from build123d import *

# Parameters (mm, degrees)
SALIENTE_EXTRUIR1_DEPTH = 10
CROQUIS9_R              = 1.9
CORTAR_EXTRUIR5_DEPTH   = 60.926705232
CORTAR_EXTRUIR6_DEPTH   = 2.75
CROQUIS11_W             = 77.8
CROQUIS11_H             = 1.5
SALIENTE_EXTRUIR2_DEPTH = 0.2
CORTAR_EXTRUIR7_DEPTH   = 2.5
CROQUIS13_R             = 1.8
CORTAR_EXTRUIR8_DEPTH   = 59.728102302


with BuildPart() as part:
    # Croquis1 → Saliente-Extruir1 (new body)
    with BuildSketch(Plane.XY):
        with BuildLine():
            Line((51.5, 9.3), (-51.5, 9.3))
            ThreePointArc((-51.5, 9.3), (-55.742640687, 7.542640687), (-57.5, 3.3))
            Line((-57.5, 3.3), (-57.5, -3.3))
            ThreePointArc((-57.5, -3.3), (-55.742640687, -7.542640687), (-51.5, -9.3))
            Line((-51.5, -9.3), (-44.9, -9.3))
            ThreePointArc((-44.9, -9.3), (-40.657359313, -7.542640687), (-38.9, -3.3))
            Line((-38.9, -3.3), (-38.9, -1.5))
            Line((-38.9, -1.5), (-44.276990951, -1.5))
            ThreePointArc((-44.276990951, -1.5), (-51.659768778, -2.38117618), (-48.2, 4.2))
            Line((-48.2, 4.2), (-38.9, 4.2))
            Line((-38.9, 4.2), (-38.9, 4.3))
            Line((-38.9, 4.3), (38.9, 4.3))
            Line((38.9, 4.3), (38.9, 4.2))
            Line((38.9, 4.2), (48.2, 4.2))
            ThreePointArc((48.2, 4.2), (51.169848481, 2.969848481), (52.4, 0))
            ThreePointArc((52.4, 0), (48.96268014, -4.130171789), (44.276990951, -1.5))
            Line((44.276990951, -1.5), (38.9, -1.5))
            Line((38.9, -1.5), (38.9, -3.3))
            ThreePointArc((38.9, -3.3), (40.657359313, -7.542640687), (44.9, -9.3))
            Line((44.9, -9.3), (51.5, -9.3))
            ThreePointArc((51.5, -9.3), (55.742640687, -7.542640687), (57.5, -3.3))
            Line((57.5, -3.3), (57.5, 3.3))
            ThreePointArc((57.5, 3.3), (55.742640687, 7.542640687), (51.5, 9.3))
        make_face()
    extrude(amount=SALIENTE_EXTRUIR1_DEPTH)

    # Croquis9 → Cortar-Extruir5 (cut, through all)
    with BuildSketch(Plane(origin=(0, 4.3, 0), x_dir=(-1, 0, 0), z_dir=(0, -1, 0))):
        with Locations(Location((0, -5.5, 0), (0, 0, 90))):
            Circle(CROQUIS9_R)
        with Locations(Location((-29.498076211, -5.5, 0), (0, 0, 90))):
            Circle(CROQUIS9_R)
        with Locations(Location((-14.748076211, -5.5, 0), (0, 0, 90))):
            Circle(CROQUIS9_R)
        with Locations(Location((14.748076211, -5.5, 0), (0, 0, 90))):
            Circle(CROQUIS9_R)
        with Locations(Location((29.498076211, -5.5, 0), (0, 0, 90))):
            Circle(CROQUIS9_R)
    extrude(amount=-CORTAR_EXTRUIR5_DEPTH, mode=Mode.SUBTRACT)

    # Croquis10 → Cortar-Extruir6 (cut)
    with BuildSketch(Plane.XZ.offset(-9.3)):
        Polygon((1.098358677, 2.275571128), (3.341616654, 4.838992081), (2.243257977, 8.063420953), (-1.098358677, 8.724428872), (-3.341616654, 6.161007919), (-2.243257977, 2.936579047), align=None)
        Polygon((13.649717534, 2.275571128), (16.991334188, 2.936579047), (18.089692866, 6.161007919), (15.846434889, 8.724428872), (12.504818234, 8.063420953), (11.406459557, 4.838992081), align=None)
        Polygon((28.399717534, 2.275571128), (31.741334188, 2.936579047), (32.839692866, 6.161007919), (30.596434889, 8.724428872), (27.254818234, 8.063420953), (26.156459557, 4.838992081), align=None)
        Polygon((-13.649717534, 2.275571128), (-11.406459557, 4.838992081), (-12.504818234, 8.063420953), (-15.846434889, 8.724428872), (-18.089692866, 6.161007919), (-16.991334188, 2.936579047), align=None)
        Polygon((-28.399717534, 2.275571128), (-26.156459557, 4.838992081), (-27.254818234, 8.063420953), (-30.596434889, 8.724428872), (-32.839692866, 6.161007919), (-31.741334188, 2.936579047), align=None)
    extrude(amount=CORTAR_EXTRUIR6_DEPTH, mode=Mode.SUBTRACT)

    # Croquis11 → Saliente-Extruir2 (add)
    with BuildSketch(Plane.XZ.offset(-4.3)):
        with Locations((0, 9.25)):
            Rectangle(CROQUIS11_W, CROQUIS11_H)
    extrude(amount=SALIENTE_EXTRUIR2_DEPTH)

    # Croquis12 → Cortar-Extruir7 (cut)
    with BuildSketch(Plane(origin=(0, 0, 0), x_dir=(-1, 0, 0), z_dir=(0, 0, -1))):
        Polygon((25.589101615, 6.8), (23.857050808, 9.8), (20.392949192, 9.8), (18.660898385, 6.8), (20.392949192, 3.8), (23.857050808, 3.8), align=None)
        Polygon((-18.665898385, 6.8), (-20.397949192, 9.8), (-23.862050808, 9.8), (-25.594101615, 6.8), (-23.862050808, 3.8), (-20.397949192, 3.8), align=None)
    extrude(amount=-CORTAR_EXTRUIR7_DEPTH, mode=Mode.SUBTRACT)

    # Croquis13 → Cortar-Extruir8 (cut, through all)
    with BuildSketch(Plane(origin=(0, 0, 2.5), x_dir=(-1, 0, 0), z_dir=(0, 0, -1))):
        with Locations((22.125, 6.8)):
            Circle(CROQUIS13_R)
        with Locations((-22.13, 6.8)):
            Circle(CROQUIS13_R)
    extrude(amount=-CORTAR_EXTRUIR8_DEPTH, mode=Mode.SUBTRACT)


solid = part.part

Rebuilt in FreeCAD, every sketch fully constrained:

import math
import FreeCAD as App
import Part
import Sketcher
from FreeCAD import Vector
Q = App.Units.Quantity


def add_polygon(sketch, points):
    """Adds a closed chain of lines whose ends are joined by coincident constraints."""
    first, n = sketch.GeometryCount, len(points)
    for a, b in zip(points, points[1:] + points[:1]):
        sketch.addGeometry(Part.LineSegment(App.Vector(*a, 0), App.Vector(*b, 0)), False)
    for i in range(n):
        sketch.addConstraint(Sketcher.Constraint("Coincident", first + i, 2, first + (i + 1) % n, 1))

doc = App.newDocument("Part")
body = doc.addObject("PartDesign::Body", "Body")

sketch1 = body.newObject("Sketcher::SketchObject", "Sketch")
sketch1.AttachmentSupport = (doc.getObject("XY_Plane"), [""])
sketch1.MapMode = "FlatFace"
sketch1.addGeometry(Part.LineSegment(Vector(51.5, 9.3, 0), Vector(-51.5, 9.3, 0)), False)
sketch1.addGeometry(Part.ArcOfCircle(Part.Circle(Vector(-51.5, 3.3, 0), Vector(0, 0, 1), 6), math.radians(90), math.radians(180)), False)
sketch1.addGeometry(Part.LineSegment(Vector(-57.5, 3.3, 0), Vector(-57.5, -3.3, 0)), False)
sketch1.addGeometry(Part.ArcOfCircle(Part.Circle(Vector(-51.5, -3.3, 0), Vector(0, 0, 1), 6), math.radians(180), math.radians(270)), False)
sketch1.addGeometry(Part.LineSegment(Vector(-51.5, -9.3, 0), Vector(-44.9, -9.3, 0)), False)
sketch1.addGeometry(Part.ArcOfCircle(Part.Circle(Vector(-44.9, -3.3, 0), Vector(0, 0, 1), 6), math.radians(-90), math.radians(0)), False)
sketch1.addGeometry(Part.LineSegment(Vector(-38.9, -3.3, 0), Vector(-38.9, -1.5, 0)), False)
sketch1.addGeometry(Part.LineSegment(Vector(-38.9, -1.5, 0), Vector(-44.276991, -1.5, 0)), False)
sketch1.addGeometry(Part.ArcOfCircle(Part.Circle(Vector(-48.2, 0, 0), Vector(0, 0, 1), 4.2), math.radians(90), math.radians(339.075168)), False)
sketch1.addGeometry(Part.LineSegment(Vector(-48.2, 4.2, 0), Vector(-38.9, 4.2, 0)), False)
sketch1.addGeometry(Part.LineSegment(Vector(-38.9, 4.2, 0), Vector(-38.9, 4.3, 0)), False)
sketch1.addGeometry(Part.LineSegment(Vector(-38.9, 4.3, 0), Vector(38.9, 4.3, 0)), False)
sketch1.addGeometry(Part.LineSegment(Vector(38.9, 4.3, 0), Vector(38.9, 4.2, 0)), False)
sketch1.addGeometry(Part.LineSegment(Vector(38.9, 4.2, 0), Vector(48.2, 4.2, 0)), False)
sketch1.addGeometry(Part.ArcOfCircle(Part.Circle(Vector(48.2, 0, 0), Vector(0, 0, 1), 4.2), math.radians(0), math.radians(90)), False)
sketch1.addGeometry(Part.ArcOfCircle(Part.Circle(Vector(48.2, 0, 0), Vector(0, 0, 1), 4.2), math.radians(-159.075168), math.radians(0)), False)
sketch1.addGeometry(Part.LineSegment(Vector(44.276991, -1.5, 0), Vector(38.9, -1.5, 0)), False)
sketch1.addGeometry(Part.LineSegment(Vector(38.9, -1.5, 0), Vector(38.9, -3.3, 0)), False)
sketch1.addGeometry(Part.ArcOfCircle(Part.Circle(Vector(44.9, -3.3, 0), Vector(0, 0, 1), 6), math.radians(180), math.radians(270)), False)
sketch1.addGeometry(Part.LineSegment(Vector(44.9, -9.3, 0), Vector(51.5, -9.3, 0)), False)
sketch1.addGeometry(Part.ArcOfCircle(Part.Circle(Vector(51.5, -3.3, 0), Vector(0, 0, 1), 6), math.radians(-90), math.radians(0)), False)
sketch1.addGeometry(Part.LineSegment(Vector(57.5, -3.3, 0), Vector(57.5, 3.3, 0)), False)
sketch1.addGeometry(Part.ArcOfCircle(Part.Circle(Vector(51.5, 3.3, 0), Vector(0, 0, 1), 6), math.radians(0), math.radians(90)), False)
sketch1.addConstraint(Sketcher.Constraint("Tangent", 0, 2, 1, 1))
sketch1.addConstraint(Sketcher.Constraint("Tangent", 1, 2, 2, 1))
sketch1.addConstraint(Sketcher.Constraint("Tangent", 2, 2, 3, 1))
sketch1.addConstraint(Sketcher.Constraint("Tangent", 3, 2, 4, 1))
sketch1.addConstraint(Sketcher.Constraint("Tangent", 4, 2, 5, 1))
sketch1.addConstraint(Sketcher.Constraint("Tangent", 5, 2, 6, 1))
sketch1.addConstraint(Sketcher.Constraint("Coincident", 6, 2, 7, 1))
sketch1.addConstraint(Sketcher.Constraint("Coincident", 7, 2, 8, 2))
sketch1.addConstraint(Sketcher.Constraint("Tangent", 8, 1, 9, 1))
sketch1.addConstraint(Sketcher.Constraint("Coincident", 9, 2, 10, 1))
sketch1.addConstraint(Sketcher.Constraint("Coincident", 10, 2, 11, 1))
sketch1.addConstraint(Sketcher.Constraint("Coincident", 11, 2, 12, 1))
sketch1.addConstraint(Sketcher.Constraint("Coincident", 12, 2, 13, 1))
sketch1.addConstraint(Sketcher.Constraint("Tangent", 13, 2, 14, 2))
sketch1.addConstraint(Sketcher.Constraint("Tangent", 14, 1, 15, 2))
sketch1.addConstraint(Sketcher.Constraint("Coincident", 15, 1, 16, 1))
sketch1.addConstraint(Sketcher.Constraint("Coincident", 16, 2, 17, 1))
sketch1.addConstraint(Sketcher.Constraint("Tangent", 17, 2, 18, 1))
sketch1.addConstraint(Sketcher.Constraint("Tangent", 18, 2, 19, 1))
sketch1.addConstraint(Sketcher.Constraint("Tangent", 19, 2, 20, 1))
sketch1.addConstraint(Sketcher.Constraint("Tangent", 20, 2, 21, 1))
sketch1.addConstraint(Sketcher.Constraint("Tangent", 21, 2, 22, 1))
sketch1.addConstraint(Sketcher.Constraint("Tangent", 22, 2, 0, 1))
sketch1.addConstraint(Sketcher.Constraint("Horizontal", 0))
sketch1.addConstraint(Sketcher.Constraint("Vertical", 2))
sketch1.addConstraint(Sketcher.Constraint("Horizontal", 4))
sketch1.addConstraint(Sketcher.Constraint("Vertical", 6))
sketch1.addConstraint(Sketcher.Constraint("Horizontal", 7))
sketch1.addConstraint(Sketcher.Constraint("Horizontal", 9))
sketch1.addConstraint(Sketcher.Constraint("Vertical", 10))
sketch1.addConstraint(Sketcher.Constraint("Horizontal", 11))
sketch1.addConstraint(Sketcher.Constraint("Vertical", 12))
sketch1.addConstraint(Sketcher.Constraint("Horizontal", 13))
sketch1.addConstraint(Sketcher.Constraint("Horizontal", 16))
sketch1.addConstraint(Sketcher.Constraint("Vertical", 17))
sketch1.addConstraint(Sketcher.Constraint("Horizontal", 19))
sketch1.addConstraint(Sketcher.Constraint("Vertical", 21))
sketch1.addConstraint(Sketcher.Constraint("Equal", 1, 3))
sketch1.addConstraint(Sketcher.Constraint("Equal", 3, 5))
sketch1.addConstraint(Sketcher.Constraint("Equal", 8, 14))
sketch1.addConstraint(Sketcher.Constraint("Equal", 14, 15))
sketch1.addConstraint(Sketcher.Constraint("Equal", 5, 18))
sketch1.addConstraint(Sketcher.Constraint("Equal", 18, 20))
sketch1.addConstraint(Sketcher.Constraint("Equal", 20, 22))
sketch1.addConstraint(Sketcher.Constraint("Symmetric", 8, 3, 14, 3, -1, 1))
sketch1.addConstraint(Sketcher.Constraint("Symmetric", 1, 3, 20, 3, -1, 1))
sketch1.addConstraint(Sketcher.Constraint("Symmetric", 5, 3, 18, 3, -2))
sketch1.addConstraint(Sketcher.Constraint("Symmetric", 9, 2, 12, 2, -2))
sketch1.addConstraint(Sketcher.Constraint("PointOnObject", 14, 1, -1))
sketch1.addConstraint(Sketcher.Constraint("Horizontal", 7, 2, 15, 1))
sketch1.addConstraint(Sketcher.Constraint("Vertical", 6, 2, 9, 2))
sketch1.addConstraint(Sketcher.Constraint("Equal", 19, 2))
sketch1.addConstraint(Sketcher.Constraint("Radius", 1, 6.0))
sketch1.addConstraint(Sketcher.Constraint("Radius", 8, 4.2))
sketch1.addConstraint(Sketcher.Constraint("DistanceX", 0, 2, 0, 1, 103.0))
sketch1.addConstraint(Sketcher.Constraint("DistanceX", 4, 1, 4, 2, 6.6))
sketch1.addConstraint(Sketcher.Constraint("DistanceX", 9, 1, 9, 2, 9.3))
sketch1.addConstraint(Sketcher.Constraint("DistanceY", 6, 1, 6, 2, 1.8))
sketch1.addConstraint(Sketcher.Constraint("DistanceY", 10, 1, 10, 2, 0.1))
pad1 = body.newObject("PartDesign::Pad", "Pad")
pad1.Profile = sketch1
pad1.Length = 10

sketch2 = body.newObject("Sketcher::SketchObject", "Sketch001")
sketch2.AttachmentSupport = (doc.getObject("XZ_Plane"), [""])
sketch2.MapMode = "FlatFace"
sketch2.AttachmentOffset = App.Placement(Vector(0, 0, -4.3), App.Rotation())
sketch2.addGeometry(Part.Circle(Vector(0, 5.5, 0), Vector(0, 0, 1), 1.9), False)
sketch2.addGeometry(Part.Circle(Vector(29.498076, 5.5, 0), Vector(0, 0, 1), 1.9), False)
sketch2.addGeometry(Part.Circle(Vector(14.748076, 5.5, 0), Vector(0, 0, 1), 1.9), False)
sketch2.addGeometry(Part.Circle(Vector(-14.748076, 5.5, 0), Vector(0, 0, 1), 1.9), False)
sketch2.addGeometry(Part.Circle(Vector(-29.498076, 5.5, 0), Vector(0, 0, 1), 1.9), False)
sketch2.addConstraint(Sketcher.Constraint("Equal", 0, 1))
sketch2.addConstraint(Sketcher.Constraint("Equal", 1, 2))
sketch2.addConstraint(Sketcher.Constraint("Equal", 2, 3))
sketch2.addConstraint(Sketcher.Constraint("Equal", 3, 4))
sketch2.addConstraint(Sketcher.Constraint("Symmetric", 2, 3, 3, 3, -2))
sketch2.addConstraint(Sketcher.Constraint("Symmetric", 1, 3, 4, 3, -2))
sketch2.addConstraint(Sketcher.Constraint("PointOnObject", 0, 3, -2))
sketch2.addConstraint(Sketcher.Constraint("Horizontal", 0, 3, 1, 3))
sketch2.addConstraint(Sketcher.Constraint("Horizontal", 1, 3, 2, 3))
sketch2.addConstraint(Sketcher.Constraint("Diameter", 0, 3.8))
sketch2.addConstraint(Sketcher.Constraint("DistanceY", -1, 1, 0, 3, 5.5))
sketch2.addConstraint(Sketcher.Constraint("DistanceX", 2, 3, 1, 3, 14.75))
sketch2.addConstraint(Sketcher.Constraint("DistanceX", -1, 1, 1, 3, 29.498076))
pocket1 = body.newObject("PartDesign::Pocket", "Pocket")
pocket1.Profile = sketch2
pocket1.Type = "ThroughAll"

sketch3 = body.newObject("Sketcher::SketchObject", "Sketch002")
sketch3.AttachmentSupport = (doc.getObject("XZ_Plane"), [""])
sketch3.MapMode = "FlatFace"
sketch3.AttachmentOffset = App.Placement(Vector(0, 0, -9.3), App.Rotation())
add_polygon(sketch3, [(1.098359, 2.275571), (3.341617, 4.838992), (2.243258, 8.063421), (-1.098359, 8.724429), (-3.341617, 6.161008), (-2.243258, 2.936579)])
add_polygon(sketch3, [(13.649718, 2.275571), (16.991334, 2.936579), (18.089693, 6.161008), (15.846435, 8.724429), (12.504818, 8.063421), (11.40646, 4.838992)])
add_polygon(sketch3, [(28.399718, 2.275571), (31.741334, 2.936579), (32.839693, 6.161008), (30.596435, 8.724429), (27.254818, 8.063421), (26.15646, 4.838992)])
add_polygon(sketch3, [(-13.649718, 2.275571), (-11.40646, 4.838992), (-12.504818, 8.063421), (-15.846435, 8.724429), (-18.089693, 6.161008), (-16.991334, 2.936579)])
add_polygon(sketch3, [(-28.399718, 2.275571), (-26.15646, 4.838992), (-27.254818, 8.063421), (-30.596435, 8.724429), (-32.839693, 6.161008), (-31.741334, 2.936579)])
sketch3.addConstraint(Sketcher.Constraint("Symmetric", 10, 2, 18, 2, -2))
sketch3.addConstraint(Sketcher.Constraint("Symmetric", 9, 2, 19, 2, -2))
sketch3.addConstraint(Sketcher.Constraint("Symmetric", 8, 2, 20, 2, -2))
sketch3.addConstraint(Sketcher.Constraint("Symmetric", 7, 2, 21, 2, -2))
sketch3.addConstraint(Sketcher.Constraint("Symmetric", 6, 2, 22, 2, -2))
sketch3.addConstraint(Sketcher.Constraint("Symmetric", 11, 2, 23, 2, -2))
sketch3.addConstraint(Sketcher.Constraint("Symmetric", 16, 2, 24, 2, -2))
sketch3.addConstraint(Sketcher.Constraint("Symmetric", 15, 2, 25, 2, -2))
sketch3.addConstraint(Sketcher.Constraint("Symmetric", 14, 2, 26, 2, -2))
sketch3.addConstraint(Sketcher.Constraint("Symmetric", 13, 2, 27, 2, -2))
sketch3.addConstraint(Sketcher.Constraint("Symmetric", 12, 2, 28, 2, -2))
sketch3.addConstraint(Sketcher.Constraint("Symmetric", 17, 2, 29, 2, -2))
sketch3.addConstraint(Sketcher.Constraint("Parallel", 0, 3))
sketch3.addConstraint(Sketcher.Constraint("Parallel", 1, 4))
sketch3.addConstraint(Sketcher.Constraint("Parallel", 2, 5))
sketch3.addConstraint(Sketcher.Constraint("Parallel", 6, 9))
sketch3.addConstraint(Sketcher.Constraint("Parallel", 7, 10))
sketch3.addConstraint(Sketcher.Constraint("Parallel", 8, 11))
sketch3.addConstraint(Sketcher.Constraint("Parallel", 9, 12))
sketch3.addConstraint(Sketcher.Constraint("Parallel", 10, 13))
sketch3.addConstraint(Sketcher.Constraint("Parallel", 11, 14))
sketch3.addConstraint(Sketcher.Constraint("Parallel", 12, 15))
sketch3.addConstraint(Sketcher.Constraint("Parallel", 13, 16))
sketch3.addConstraint(Sketcher.Constraint("Parallel", 14, 17))
sketch3.addConstraint(Sketcher.Constraint("Parallel", 3, 18))
sketch3.addConstraint(Sketcher.Constraint("Parallel", 4, 19))
sketch3.addConstraint(Sketcher.Constraint("Parallel", 5, 20))
sketch3.addConstraint(Sketcher.Constraint("Horizontal", 4, 2, 6, 2))
sketch3.addConstraint(Sketcher.Constraint("Horizontal", 3, 2, 7, 2))
sketch3.addConstraint(Sketcher.Constraint("Horizontal", 2, 2, 8, 2))
sketch3.addConstraint(Sketcher.Constraint("Horizontal", 1, 2, 9, 2))
sketch3.addConstraint(Sketcher.Constraint("Horizontal", 0, 2, 10, 2))
sketch3.addConstraint(Sketcher.Constraint("Horizontal", 6, 2, 12, 2))
sketch3.addConstraint(Sketcher.Constraint("Horizontal", 7, 2, 13, 2))
sketch3.addConstraint(Sketcher.Constraint("Horizontal", 8, 2, 14, 2))
sketch3.addConstraint(Sketcher.Constraint("Horizontal", 9, 2, 15, 2))
sketch3.addConstraint(Sketcher.Constraint("Horizontal", 10, 2, 16, 2))
sketch3.addConstraint(Sketcher.Constraint("Equal", 0, 1))
sketch3.addConstraint(Sketcher.Constraint("Equal", 1, 2))
sketch3.addConstraint(Sketcher.Constraint("Equal", 2, 3))
sketch3.addConstraint(Sketcher.Constraint("DistanceX", 6, 2, 12, 2, 14.75))
sketch3.addConstraint(Sketcher.Constraint("DistanceX", 4, 2, 2, 2, 1.144899))
sketch3.addConstraint(Sketcher.Constraint("DistanceX", 0, 2, 9, 2, 9.163202))
sketch3.addConstraint(Sketcher.Constraint("DistanceX", 18, 2, 4, 2, 9.163202))
sketch3.addConstraint(Sketcher.Constraint("DistanceY", -1, 1, 1, 2, 8.063421))
sketch3.addConstraint(Sketcher.Constraint("DistanceX", 2, 2, -1, 1, 1.098359))
sketch3.addConstraint(Sketcher.Constraint("DistanceY", -1, 1, 2, 2, 8.724429))
sketch3.addConstraint(Sketcher.Constraint("DistanceY", -1, 1, 4, 2, 2.936579))
pocket2 = body.newObject("PartDesign::Pocket", "Pocket001")
pocket2.Profile = sketch3
pocket2.Length = 2.75
pocket2.Reversed = True

sketch4 = body.newObject("Sketcher::SketchObject", "Sketch003")
sketch4.AttachmentSupport = (doc.getObject("XZ_Plane"), [""])
sketch4.MapMode = "FlatFace"
sketch4.AttachmentOffset = App.Placement(Vector(0, 0, -4.3), App.Rotation())
add_polygon(sketch4, [(-38.9, 10), (-38.9, 8.5), (38.9, 8.5), (38.9, 10)])
sketch4.addConstraint(Sketcher.Constraint("Vertical", 0))
sketch4.addConstraint(Sketcher.Constraint("Horizontal", 1))
sketch4.addConstraint(Sketcher.Constraint("Vertical", 2))
sketch4.addConstraint(Sketcher.Constraint("Horizontal", 3))
sketch4.addConstraint(Sketcher.Constraint("DistanceX", 1, 1, 1, 2, 77.8))
sketch4.addConstraint(Sketcher.Constraint("DistanceY", 0, 2, 0, 1, 1.5))
sketch4.addConstraint(Sketcher.Constraint("DistanceY", -1, 1, 2, 2, 10.0))
sketch4.addConstraint(Sketcher.Constraint("DistanceX", 0, 2, -1, 1, 38.9))
pad2 = body.newObject("PartDesign::Pad", "Pad001")
pad2.Profile = sketch4
pad2.Length = 0.2

sketch5 = body.newObject("Sketcher::SketchObject", "Sketch004")
sketch5.AttachmentSupport = (doc.getObject("XY_Plane"), [""])
sketch5.MapMode = "FlatFace"
add_polygon(sketch5, [(-25.589102, 6.8), (-23.857051, 9.8), (-20.392949, 9.8), (-18.660898, 6.8), (-20.392949, 3.8), (-23.857051, 3.8)])
add_polygon(sketch5, [(18.665898, 6.8), (20.397949, 9.8), (23.862051, 9.8), (25.594102, 6.8), (23.862051, 3.8), (20.397949, 3.8)])
sketch5.addConstraint(Sketcher.Constraint("Horizontal", 1))
sketch5.addConstraint(Sketcher.Constraint("Horizontal", 4))
sketch5.addConstraint(Sketcher.Constraint("Horizontal", 7))
sketch5.addConstraint(Sketcher.Constraint("Horizontal", 10))
sketch5.addConstraint(Sketcher.Constraint("Parallel", 0, 3))
sketch5.addConstraint(Sketcher.Constraint("Parallel", 2, 5))
sketch5.addConstraint(Sketcher.Constraint("Parallel", 3, 6))
sketch5.addConstraint(Sketcher.Constraint("Parallel", 5, 8))
sketch5.addConstraint(Sketcher.Constraint("Parallel", 6, 9))
sketch5.addConstraint(Sketcher.Constraint("Parallel", 8, 11))
sketch5.addConstraint(Sketcher.Constraint("Horizontal", 2, 2, 5, 2))
sketch5.addConstraint(Sketcher.Constraint("Horizontal", 1, 2, 6, 2))
sketch5.addConstraint(Sketcher.Constraint("Horizontal", 5, 2, 8, 2))
sketch5.addConstraint(Sketcher.Constraint("Horizontal", 4, 2, 9, 2))
sketch5.addConstraint(Sketcher.Constraint("Horizontal", 8, 2, 11, 2))
sketch5.addConstraint(Sketcher.Constraint("Vertical", 1, 2, 3, 2))
sketch5.addConstraint(Sketcher.Constraint("Vertical", 0, 2, 4, 2))
sketch5.addConstraint(Sketcher.Constraint("Equal", 4, 7))
sketch5.addConstraint(Sketcher.Constraint("Angle", 0, Q("60 deg")))
sketch5.addConstraint(Sketcher.Constraint("DistanceY", 2, 2, 1, 2, 3.0))
sketch5.addConstraint(Sketcher.Constraint("DistanceY", -1, 1, 0, 2, 9.8))
sketch5.addConstraint(Sketcher.Constraint("DistanceX", 1, 1, 1, 2, 3.464102))
sketch5.addConstraint(Sketcher.Constraint("DistanceX", 0, 2, 6, 2, 44.255))
sketch5.addConstraint(Sketcher.Constraint("DistanceX", 2, 2, -1, 1, 18.660898))
pocket3 = body.newObject("PartDesign::Pocket", "Pocket002")
pocket3.Profile = sketch5
pocket3.Length = 2.5
pocket3.Reversed = True

sketch6 = body.newObject("Sketcher::SketchObject", "Sketch005")
sketch6.AttachmentSupport = (doc.getObject("XY_Plane"), [""])
sketch6.MapMode = "FlatFace"
sketch6.AttachmentOffset = App.Placement(Vector(0, 0, 2.5), App.Rotation())
sketch6.addGeometry(Part.Circle(Vector(-22.125, 6.8, 0), Vector(0, 0, 1), 1.8), False)
sketch6.addGeometry(Part.Circle(Vector(22.13, 6.8, 0), Vector(0, 0, 1), 1.8), False)
sketch6.addConstraint(Sketcher.Constraint("Equal", 0, 1))
sketch6.addConstraint(Sketcher.Constraint("Horizontal", 0, 3, 1, 3))
sketch6.addConstraint(Sketcher.Constraint("Diameter", 0, 3.6))
sketch6.addConstraint(Sketcher.Constraint("DistanceY", -1, 1, 0, 3, 6.8))
sketch6.addConstraint(Sketcher.Constraint("DistanceX", -1, 1, 1, 3, 22.13))
sketch6.addConstraint(Sketcher.Constraint("DistanceX", 0, 3, -1, 1, 22.125))
pocket4 = body.newObject("PartDesign::Pocket", "Pocket003")
pocket4.Profile = sketch6
pocket4.Type = "ThroughAll"
pocket4.Reversed = True

doc.recompute()
